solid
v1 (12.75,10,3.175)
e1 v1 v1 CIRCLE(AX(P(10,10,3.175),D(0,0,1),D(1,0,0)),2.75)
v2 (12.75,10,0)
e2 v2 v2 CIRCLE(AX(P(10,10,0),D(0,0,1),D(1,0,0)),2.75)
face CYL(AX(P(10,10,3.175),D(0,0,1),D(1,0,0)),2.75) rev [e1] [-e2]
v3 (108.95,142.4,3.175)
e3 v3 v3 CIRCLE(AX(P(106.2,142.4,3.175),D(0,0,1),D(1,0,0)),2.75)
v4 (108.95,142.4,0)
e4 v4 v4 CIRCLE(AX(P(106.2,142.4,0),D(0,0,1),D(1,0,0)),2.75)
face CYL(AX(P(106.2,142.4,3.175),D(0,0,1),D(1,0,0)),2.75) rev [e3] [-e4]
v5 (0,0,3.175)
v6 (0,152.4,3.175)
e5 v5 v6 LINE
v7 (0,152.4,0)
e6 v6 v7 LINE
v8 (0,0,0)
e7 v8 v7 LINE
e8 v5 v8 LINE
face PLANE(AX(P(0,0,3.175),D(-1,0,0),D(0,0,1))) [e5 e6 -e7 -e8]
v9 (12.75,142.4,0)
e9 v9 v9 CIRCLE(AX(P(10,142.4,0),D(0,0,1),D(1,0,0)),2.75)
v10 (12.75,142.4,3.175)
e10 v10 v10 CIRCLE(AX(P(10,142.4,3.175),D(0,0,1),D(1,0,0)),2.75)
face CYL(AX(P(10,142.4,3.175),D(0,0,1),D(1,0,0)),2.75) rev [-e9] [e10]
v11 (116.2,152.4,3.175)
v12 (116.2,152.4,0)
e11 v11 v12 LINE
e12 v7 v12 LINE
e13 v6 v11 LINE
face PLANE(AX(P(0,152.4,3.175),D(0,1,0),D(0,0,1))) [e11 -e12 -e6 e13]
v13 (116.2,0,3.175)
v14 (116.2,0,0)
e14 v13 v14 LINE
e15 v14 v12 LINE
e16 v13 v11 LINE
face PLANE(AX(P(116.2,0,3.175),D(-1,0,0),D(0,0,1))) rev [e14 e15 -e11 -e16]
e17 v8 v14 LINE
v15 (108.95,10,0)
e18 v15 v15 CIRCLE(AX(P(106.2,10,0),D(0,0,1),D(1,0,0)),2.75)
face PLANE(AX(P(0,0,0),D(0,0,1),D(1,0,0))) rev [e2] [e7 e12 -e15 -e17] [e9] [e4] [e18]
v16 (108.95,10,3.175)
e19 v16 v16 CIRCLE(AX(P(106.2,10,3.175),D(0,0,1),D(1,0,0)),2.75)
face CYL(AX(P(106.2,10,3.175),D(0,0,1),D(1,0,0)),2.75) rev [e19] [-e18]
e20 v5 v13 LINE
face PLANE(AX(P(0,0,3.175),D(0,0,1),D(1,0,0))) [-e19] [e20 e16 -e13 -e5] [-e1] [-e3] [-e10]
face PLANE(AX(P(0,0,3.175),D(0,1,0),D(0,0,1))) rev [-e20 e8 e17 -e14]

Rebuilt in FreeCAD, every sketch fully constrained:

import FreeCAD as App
import Part
import Sketcher
Q = App.Units.Quantity


def add_polygon(sketch, points):
    """Adds a closed chain of lines whose ends are joined by coincident constraints."""
    first, n = sketch.GeometryCount, len(points)
    for a, b in zip(points, points[1:] + points[:1]):
        sketch.addGeometry(Part.LineSegment(App.Vector(*a, 0), App.Vector(*b, 0)), False)
    for i in range(n):
        sketch.addConstraint(Sketcher.Constraint("Coincident", first + i, 2, first + (i + 1) % n, 1))

doc = App.newDocument("Part")
body = doc.addObject("PartDesign::Body", "Body")

# Sketch on XY plane
sketch1 = doc.addObject("Sketcher::SketchObject", "Sketch")
body.addObject(sketch1)
sketch1.AttachmentSupport = (doc.XY_Plane, [""])
sketch1.MapMode = "FlatFace"
add_polygon(sketch1, [(0, 152), (0, 0), (116, 0), (116, 152)])  # lines 0-3
sketch1.addConstraint([
    Sketcher.Constraint("Vertical", 0),
    Sketcher.Constraint("Horizontal", 1),
    Sketcher.Constraint("Vertical", 2),
    Sketcher.Constraint("Horizontal", 3),
    Sketcher.Constraint("Coincident", 0, 2, -1, 1),
    Sketcher.Constraint("DistanceX", 1, 1, 1, 2, Q("116.2 mm")),
    Sketcher.Constraint("DistanceY", 0, 2, 0, 1, Q("152.4 mm")),
])
pad1 = doc.addObject("PartDesign::Pad", "Pad")
body.addObject(pad1)
pad1.Profile = sketch1
pad1.Length = 3.175

# Sketch on XY plane
sketch2 = doc.addObject("Sketcher::SketchObject", "Sketch001")
body.addObject(sketch2)
sketch2.AttachmentSupport = (doc.XY_Plane, [""])
sketch2.MapMode = "FlatFace"
sketch2.AttachmentOffset = App.Placement(App.Vector(0, 0, 3.175), App.Rotation())
sketch2.addGeometry([
    Part.Circle(App.Vector(10, 142.4, 0), App.Vector(0, 0, 1), 2.8),
    Part.Circle(App.Vector(106.2, 142.4, 0), App.Vector(0, 0, 1), 2.8),
    Part.Circle(App.Vector(106.2, 10, 0), App.Vector(0, 0, 1), 2.8),
    Part.Circle(App.Vector(10, 10, 0), App.Vector(0, 0, 1), 2.8),
], False)
sketch2.addConstraint([
    Sketcher.Constraint("Equal", 0, 1),
    Sketcher.Constraint("Equal", 1, 2),
    Sketcher.Constraint("Equal", 2, 3),
    Sketcher.Constraint("Horizontal", 0, 3, 1, 3),
    Sketcher.Constraint("Horizontal", 2, 3, 3, 3),
    Sketcher.Constraint("Vertical", 1, 3, 2, 3),
    Sketcher.Constraint("Vertical", 0, 3, 3, 3),
    Sketcher.Constraint("Diameter", 0, Q("5.5 mm")),
    Sketcher.Constraint("DistanceX", -1, 1, 0, 3, Q("10 mm")),
    Sketcher.Constraint("DistanceY", -1, 1, 2, 3, Q("10 mm")),
    Sketcher.Constraint("DistanceY", -1, 1, 0, 3, Q("142.4 mm")),
    Sketcher.Constraint("DistanceX", -1, 1, 1, 3, Q("106.2 mm")),
])
doc.recompute()
hole = doc.addObject("PartDesign::Hole", "Hole")
body.addObject(hole)
hole.Profile = sketch2
hole.ThreadType = "None"
hole.Diameter = 5.5
hole.DepthType = "ThroughAll"

doc.recompute()
